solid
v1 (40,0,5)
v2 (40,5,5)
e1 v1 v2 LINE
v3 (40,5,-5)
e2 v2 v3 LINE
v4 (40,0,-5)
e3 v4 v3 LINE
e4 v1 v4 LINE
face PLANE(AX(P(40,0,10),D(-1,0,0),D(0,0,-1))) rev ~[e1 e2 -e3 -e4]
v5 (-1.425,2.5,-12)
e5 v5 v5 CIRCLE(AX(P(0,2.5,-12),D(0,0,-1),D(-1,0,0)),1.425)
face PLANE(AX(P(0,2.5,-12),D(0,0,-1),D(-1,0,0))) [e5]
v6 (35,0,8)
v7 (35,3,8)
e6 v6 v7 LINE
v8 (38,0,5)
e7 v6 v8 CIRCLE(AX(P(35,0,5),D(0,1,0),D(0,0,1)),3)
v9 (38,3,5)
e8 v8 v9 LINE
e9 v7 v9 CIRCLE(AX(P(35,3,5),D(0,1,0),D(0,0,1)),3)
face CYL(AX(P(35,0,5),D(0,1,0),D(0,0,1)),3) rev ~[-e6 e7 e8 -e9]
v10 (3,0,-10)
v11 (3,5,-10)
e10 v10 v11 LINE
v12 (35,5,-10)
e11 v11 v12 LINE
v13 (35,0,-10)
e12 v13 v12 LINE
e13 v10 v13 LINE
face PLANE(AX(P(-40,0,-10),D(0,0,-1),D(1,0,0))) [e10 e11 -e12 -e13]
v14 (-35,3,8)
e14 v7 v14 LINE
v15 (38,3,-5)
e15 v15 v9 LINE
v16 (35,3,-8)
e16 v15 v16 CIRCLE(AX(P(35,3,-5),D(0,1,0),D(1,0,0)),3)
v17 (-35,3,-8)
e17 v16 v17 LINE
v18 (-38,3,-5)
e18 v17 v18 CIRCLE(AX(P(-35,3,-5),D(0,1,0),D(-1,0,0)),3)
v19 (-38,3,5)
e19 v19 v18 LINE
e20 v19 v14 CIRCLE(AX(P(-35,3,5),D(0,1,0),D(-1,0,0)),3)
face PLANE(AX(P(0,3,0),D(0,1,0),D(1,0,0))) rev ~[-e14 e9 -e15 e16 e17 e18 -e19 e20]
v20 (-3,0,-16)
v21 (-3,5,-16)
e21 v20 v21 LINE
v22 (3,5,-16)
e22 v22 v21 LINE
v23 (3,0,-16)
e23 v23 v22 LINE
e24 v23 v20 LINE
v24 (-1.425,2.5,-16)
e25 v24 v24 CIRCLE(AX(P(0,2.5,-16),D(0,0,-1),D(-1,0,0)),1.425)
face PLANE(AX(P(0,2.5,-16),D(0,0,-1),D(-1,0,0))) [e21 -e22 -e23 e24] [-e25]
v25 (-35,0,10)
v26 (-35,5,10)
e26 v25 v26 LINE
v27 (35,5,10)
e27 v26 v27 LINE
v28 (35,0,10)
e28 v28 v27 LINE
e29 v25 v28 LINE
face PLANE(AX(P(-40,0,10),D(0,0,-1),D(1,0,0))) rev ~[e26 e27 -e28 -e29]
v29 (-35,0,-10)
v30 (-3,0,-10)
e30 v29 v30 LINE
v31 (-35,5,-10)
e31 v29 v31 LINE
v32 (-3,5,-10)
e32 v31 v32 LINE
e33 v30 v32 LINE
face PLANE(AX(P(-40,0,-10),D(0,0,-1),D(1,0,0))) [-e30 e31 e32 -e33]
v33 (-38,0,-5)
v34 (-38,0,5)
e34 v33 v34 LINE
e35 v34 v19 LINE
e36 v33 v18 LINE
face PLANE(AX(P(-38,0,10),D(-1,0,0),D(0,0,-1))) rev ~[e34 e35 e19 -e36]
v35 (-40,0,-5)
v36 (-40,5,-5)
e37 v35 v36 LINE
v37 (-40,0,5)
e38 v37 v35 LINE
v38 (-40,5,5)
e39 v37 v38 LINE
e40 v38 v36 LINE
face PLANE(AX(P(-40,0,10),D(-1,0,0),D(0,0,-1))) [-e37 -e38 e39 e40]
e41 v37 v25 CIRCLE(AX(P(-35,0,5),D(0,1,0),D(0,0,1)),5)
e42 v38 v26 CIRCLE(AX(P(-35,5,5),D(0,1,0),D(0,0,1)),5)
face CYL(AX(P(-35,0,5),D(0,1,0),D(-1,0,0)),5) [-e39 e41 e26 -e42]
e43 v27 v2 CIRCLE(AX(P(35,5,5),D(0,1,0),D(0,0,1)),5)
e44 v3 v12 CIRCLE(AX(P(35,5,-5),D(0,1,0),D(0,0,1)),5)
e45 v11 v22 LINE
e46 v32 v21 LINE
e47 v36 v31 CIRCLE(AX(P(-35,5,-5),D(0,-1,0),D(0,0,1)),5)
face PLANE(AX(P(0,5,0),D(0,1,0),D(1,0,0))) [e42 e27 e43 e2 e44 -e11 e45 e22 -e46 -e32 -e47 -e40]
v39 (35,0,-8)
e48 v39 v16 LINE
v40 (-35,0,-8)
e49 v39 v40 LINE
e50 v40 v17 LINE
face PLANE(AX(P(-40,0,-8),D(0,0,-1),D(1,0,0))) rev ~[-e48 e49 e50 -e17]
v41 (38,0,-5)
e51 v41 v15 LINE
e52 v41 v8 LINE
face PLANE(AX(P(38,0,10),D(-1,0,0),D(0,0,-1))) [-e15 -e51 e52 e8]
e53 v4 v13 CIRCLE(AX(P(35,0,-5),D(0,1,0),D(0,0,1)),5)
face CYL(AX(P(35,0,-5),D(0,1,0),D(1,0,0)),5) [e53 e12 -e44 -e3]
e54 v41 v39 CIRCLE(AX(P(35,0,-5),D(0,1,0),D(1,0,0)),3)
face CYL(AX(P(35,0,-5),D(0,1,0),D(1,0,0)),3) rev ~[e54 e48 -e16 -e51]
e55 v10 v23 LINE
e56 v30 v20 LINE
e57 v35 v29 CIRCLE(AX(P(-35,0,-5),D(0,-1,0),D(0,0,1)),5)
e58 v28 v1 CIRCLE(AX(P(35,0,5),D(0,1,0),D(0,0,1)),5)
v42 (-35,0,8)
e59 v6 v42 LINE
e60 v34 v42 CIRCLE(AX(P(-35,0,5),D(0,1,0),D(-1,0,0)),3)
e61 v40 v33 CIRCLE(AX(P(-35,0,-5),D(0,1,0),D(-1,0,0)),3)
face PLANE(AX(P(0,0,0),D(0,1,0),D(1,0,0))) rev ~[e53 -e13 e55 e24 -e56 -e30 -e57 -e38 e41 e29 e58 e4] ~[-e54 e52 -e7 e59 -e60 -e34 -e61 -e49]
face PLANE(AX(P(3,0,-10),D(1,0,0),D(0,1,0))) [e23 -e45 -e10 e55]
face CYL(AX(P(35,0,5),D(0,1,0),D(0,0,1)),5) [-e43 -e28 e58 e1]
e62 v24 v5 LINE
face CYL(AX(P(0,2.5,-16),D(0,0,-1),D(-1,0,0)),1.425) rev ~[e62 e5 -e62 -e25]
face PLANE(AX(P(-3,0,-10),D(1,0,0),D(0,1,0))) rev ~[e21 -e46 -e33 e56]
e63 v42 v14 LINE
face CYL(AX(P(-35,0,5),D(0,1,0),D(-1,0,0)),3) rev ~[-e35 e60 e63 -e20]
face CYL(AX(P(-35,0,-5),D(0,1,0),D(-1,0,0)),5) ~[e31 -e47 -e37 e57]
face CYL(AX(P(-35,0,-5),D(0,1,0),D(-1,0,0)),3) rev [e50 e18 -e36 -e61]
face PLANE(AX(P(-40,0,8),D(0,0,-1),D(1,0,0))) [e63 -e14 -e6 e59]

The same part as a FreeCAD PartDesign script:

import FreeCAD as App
import Part
import Sketcher

V = App.Vector
Q = App.Units.Quantity


def edges_at(feature, points):
    """Names of the edges that pass closest to the given points."""
    edges = feature.Shape.Edges
    near = lambda p: min(range(len(edges)), key=lambda i: edges[i].distToShape(Part.Vertex(*p))[0])
    return sorted({f"Edge{near(p) + 1}" for p in points})


def faces_at(feature, points):
    """Names of the faces that lie closest to the given points."""
    faces = feature.Shape.Faces
    near = lambda p: min(range(len(faces)), key=lambda i: faces[i].distToShape(Part.Vertex(*p))[0])
    return sorted({f"Face{near(p) + 1}" for p in points})


def add_polygon(sketch, points):
    """Adds a closed chain of lines whose ends are joined by coincident constraints."""
    first, n = sketch.GeometryCount, len(points)
    for a, b in zip(points, points[1:] + points[:1]):
        sketch.addGeometry(Part.LineSegment(App.Vector(*a, 0), App.Vector(*b, 0)), False)
    for i in range(n):
        sketch.addConstraint(Sketcher.Constraint("Coincident", first + i, 2, first + (i + 1) % n, 1))

doc = App.newDocument("Part")
body = doc.addObject("PartDesign::Body", "Body")

sketch1 = doc.addObject("Sketcher::SketchObject", "Sketch")
body.addObject(sketch1)
sketch1.AttachmentSupport = (doc.XZ_Plane, [""])
sketch1.MapMode = "FlatFace"
add_polygon(sketch1, [(-40, -10), (-40, 10), (40, 10), (40, -10)])
sketch1.addConstraint([
    Sketcher.Constraint("Vertical", 0),
    Sketcher.Constraint("Horizontal", 1),
    Sketcher.Constraint("Vertical", 2),
    Sketcher.Constraint("Horizontal", 3),
    Sketcher.Constraint("Symmetric", 0, 2, 2, 2, -1, 1),
    Sketcher.Constraint("DistanceX", 1, 1, 1, 2, Q("80 mm")),
    Sketcher.Constraint("DistanceY", 0, 1, 0, 2, Q("20 mm")),
])
pad1 = doc.addObject("PartDesign::Pad", "Pad")
body.addObject(pad1)
pad1.Profile = sketch1
pad1.Length = 5
pad1.Reversed = True
doc.recompute()

fillet = doc.addObject("PartDesign::Fillet", "Fillet")
body.addObject(fillet)
fillet.Base = (pad1, edges_at(pad1, [
    (-40, 2.5, -10),
    (40, 2.5, -10),
    (40, 2.5, 10),
    (-40, 2.5, 10),
]))
fillet.Radius = 5
doc.recompute()

thickness = doc.addObject("PartDesign::Thickness", "Thickness")
body.addObject(thickness)
thickness.Base = (fillet, faces_at(fillet, [(0, 0, 0)]))
thickness.Value = 2
thickness.Reversed = True
thickness.Join = "Intersection"

sketch2 = doc.addObject("Sketcher::SketchObject", "Sketch001")
body.addObject(sketch2)
sketch2.AttachmentSupport = (doc.XY_Plane, [""])
sketch2.MapMode = "FlatFace"
sketch2.AttachmentOffset = App.Placement(V(0, 0, -10), App.Rotation())
add_polygon(sketch2, [(3, 5), (3, 0), (-3, 0), (-3, 5)])
sketch2.addConstraint([
    Sketcher.Constraint("Vertical", 0),
    Sketcher.Constraint("Horizontal", 1),
    Sketcher.Constraint("Vertical", 2),
    Sketcher.Constraint("Horizontal", 3),
    Sketcher.Constraint("Symmetric", 0, 2, 1, 2, -1, 1),
    Sketcher.Constraint("DistanceX", 1, 2, 1, 1, Q("6 mm")),
    Sketcher.Constraint("DistanceY", 0, 2, 0, 1, Q("5 mm")),
])
pad2 = doc.addObject("PartDesign::Pad", "Pad001")
body.addObject(pad2)
pad2.Profile = sketch2
pad2.Length = 6
pad2.Reversed = True

sketch3 = doc.addObject("Sketcher::SketchObject", "Sketch002")
body.addObject(sketch3)
sketch3.AttachmentSupport = (doc.XY_Plane, [""])
sketch3.MapMode = "FlatFace"
sketch3.AttachmentOffset = App.Placement(V(0, 0, -16), App.Rotation())
sketch3.addGeometry(Part.Circle(V(0, 2.5, 0), V(0, 0, 1), 1.4), False)
sketch3.addConstraint([
    Sketcher.Constraint("PointOnObject", 0, 3, -2),
    Sketcher.Constraint("Diameter", 0, Q("2.85 mm")),
    Sketcher.Constraint("DistanceY", -1, 1, 0, 3, Q("2.5 mm")),
])
pocket1 = doc.addObject("PartDesign::Pocket", "Pocket")
body.addObject(pocket1)
pocket1.Profile = sketch3
pocket1.Length = 4
pocket1.Reversed = True

doc.recompute()
